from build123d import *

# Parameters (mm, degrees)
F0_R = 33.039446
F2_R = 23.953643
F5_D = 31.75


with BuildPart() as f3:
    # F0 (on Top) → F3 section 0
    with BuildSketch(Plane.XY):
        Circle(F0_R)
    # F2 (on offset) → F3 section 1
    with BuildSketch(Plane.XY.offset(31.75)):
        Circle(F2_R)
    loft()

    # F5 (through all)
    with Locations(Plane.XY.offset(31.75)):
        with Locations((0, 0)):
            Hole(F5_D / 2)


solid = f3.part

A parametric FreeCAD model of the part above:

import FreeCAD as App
import Part
import Sketcher
Q = App.Units.Quantity

doc = App.newDocument("Part")
params = doc.addObject("Spreadsheet::Sheet", "Params")
for row, (alias, value) in enumerate([
    ("sketch3_diameter", "1.25 in"),
    ("hole_diameter", "1.25 in"),
], start=1):
    params.set(f"A{row}", alias)
    params.set(f"B{row}", "=" + value)
    params.setAlias(f"B{row}", alias)

body = doc.addObject("PartDesign::Body", "Body")

sketch1 = body.newObject("Sketcher::SketchObject", "Sketch")
sketch1.AttachmentSupport = (doc.getObject("XY_Plane"), [""])
sketch1.MapMode = "FlatFace"
sketch1.addGeometry(Part.Circle(App.Vector(0, 0, 0), App.Vector(0, 0, 1), 33), False)
sketch1.addConstraint(Sketcher.Constraint("Coincident", 0, 3, -1, 1))
sketch1.addConstraint(Sketcher.Constraint("Diameter", 0, Q("66.078892 mm")))

sketch2 = body.newObject("Sketcher::SketchObject", "Sketch001")
sketch2.AttachmentSupport = (doc.getObject("XY_Plane"), [""])
sketch2.MapMode = "FlatFace"
sketch2.AttachmentOffset = App.Placement(App.Vector(0, 0, 1.25 * 25.4), App.Rotation())
sketch2.addGeometry(Part.Circle(App.Vector(0, 0, 0), App.Vector(0, 0, 1), 24), False)
sketch2.addConstraint(Sketcher.Constraint("Coincident", 0, 3, -1, 1))
sketch2.addConstraint(Sketcher.Constraint("Diameter", 0, Q("47.907286 mm")))

additiveloft = body.newObject("PartDesign::AdditiveLoft", "AdditiveLoft")
additiveloft.Profile = sketch1
additiveloft.Sections = [sketch2]

sketch3 = body.newObject("Sketcher::SketchObject", "Sketch002")
sketch3.AttachmentSupport = (doc.getObject("XY_Plane"), [""])
sketch3.MapMode = "FlatFace"
sketch3.AttachmentOffset = App.Placement(App.Vector(0, 0, 1.25 * 25.4), App.Rotation())
sketch3.addGeometry(Part.Circle(App.Vector(0, 0, 0), App.Vector(0, 0, 1), 16), False)
sketch3.addConstraint(Sketcher.Constraint("Coincident", 0, 3, -1, 1))
sketch3.addConstraint(Sketcher.Constraint("Diameter", 0, Q("1.25 in")))
sketch3.setExpression("Constraints[1]", "Params.sketch3_diameter")
doc.recompute()
hole = body.newObject("PartDesign::Hole", "Hole")
hole.Profile = sketch3
hole.ThreadType = "None"
hole.setExpression("Diameter", "Params.hole_diameter")
hole.DepthType = "ThroughAll"

doc.recompute()
